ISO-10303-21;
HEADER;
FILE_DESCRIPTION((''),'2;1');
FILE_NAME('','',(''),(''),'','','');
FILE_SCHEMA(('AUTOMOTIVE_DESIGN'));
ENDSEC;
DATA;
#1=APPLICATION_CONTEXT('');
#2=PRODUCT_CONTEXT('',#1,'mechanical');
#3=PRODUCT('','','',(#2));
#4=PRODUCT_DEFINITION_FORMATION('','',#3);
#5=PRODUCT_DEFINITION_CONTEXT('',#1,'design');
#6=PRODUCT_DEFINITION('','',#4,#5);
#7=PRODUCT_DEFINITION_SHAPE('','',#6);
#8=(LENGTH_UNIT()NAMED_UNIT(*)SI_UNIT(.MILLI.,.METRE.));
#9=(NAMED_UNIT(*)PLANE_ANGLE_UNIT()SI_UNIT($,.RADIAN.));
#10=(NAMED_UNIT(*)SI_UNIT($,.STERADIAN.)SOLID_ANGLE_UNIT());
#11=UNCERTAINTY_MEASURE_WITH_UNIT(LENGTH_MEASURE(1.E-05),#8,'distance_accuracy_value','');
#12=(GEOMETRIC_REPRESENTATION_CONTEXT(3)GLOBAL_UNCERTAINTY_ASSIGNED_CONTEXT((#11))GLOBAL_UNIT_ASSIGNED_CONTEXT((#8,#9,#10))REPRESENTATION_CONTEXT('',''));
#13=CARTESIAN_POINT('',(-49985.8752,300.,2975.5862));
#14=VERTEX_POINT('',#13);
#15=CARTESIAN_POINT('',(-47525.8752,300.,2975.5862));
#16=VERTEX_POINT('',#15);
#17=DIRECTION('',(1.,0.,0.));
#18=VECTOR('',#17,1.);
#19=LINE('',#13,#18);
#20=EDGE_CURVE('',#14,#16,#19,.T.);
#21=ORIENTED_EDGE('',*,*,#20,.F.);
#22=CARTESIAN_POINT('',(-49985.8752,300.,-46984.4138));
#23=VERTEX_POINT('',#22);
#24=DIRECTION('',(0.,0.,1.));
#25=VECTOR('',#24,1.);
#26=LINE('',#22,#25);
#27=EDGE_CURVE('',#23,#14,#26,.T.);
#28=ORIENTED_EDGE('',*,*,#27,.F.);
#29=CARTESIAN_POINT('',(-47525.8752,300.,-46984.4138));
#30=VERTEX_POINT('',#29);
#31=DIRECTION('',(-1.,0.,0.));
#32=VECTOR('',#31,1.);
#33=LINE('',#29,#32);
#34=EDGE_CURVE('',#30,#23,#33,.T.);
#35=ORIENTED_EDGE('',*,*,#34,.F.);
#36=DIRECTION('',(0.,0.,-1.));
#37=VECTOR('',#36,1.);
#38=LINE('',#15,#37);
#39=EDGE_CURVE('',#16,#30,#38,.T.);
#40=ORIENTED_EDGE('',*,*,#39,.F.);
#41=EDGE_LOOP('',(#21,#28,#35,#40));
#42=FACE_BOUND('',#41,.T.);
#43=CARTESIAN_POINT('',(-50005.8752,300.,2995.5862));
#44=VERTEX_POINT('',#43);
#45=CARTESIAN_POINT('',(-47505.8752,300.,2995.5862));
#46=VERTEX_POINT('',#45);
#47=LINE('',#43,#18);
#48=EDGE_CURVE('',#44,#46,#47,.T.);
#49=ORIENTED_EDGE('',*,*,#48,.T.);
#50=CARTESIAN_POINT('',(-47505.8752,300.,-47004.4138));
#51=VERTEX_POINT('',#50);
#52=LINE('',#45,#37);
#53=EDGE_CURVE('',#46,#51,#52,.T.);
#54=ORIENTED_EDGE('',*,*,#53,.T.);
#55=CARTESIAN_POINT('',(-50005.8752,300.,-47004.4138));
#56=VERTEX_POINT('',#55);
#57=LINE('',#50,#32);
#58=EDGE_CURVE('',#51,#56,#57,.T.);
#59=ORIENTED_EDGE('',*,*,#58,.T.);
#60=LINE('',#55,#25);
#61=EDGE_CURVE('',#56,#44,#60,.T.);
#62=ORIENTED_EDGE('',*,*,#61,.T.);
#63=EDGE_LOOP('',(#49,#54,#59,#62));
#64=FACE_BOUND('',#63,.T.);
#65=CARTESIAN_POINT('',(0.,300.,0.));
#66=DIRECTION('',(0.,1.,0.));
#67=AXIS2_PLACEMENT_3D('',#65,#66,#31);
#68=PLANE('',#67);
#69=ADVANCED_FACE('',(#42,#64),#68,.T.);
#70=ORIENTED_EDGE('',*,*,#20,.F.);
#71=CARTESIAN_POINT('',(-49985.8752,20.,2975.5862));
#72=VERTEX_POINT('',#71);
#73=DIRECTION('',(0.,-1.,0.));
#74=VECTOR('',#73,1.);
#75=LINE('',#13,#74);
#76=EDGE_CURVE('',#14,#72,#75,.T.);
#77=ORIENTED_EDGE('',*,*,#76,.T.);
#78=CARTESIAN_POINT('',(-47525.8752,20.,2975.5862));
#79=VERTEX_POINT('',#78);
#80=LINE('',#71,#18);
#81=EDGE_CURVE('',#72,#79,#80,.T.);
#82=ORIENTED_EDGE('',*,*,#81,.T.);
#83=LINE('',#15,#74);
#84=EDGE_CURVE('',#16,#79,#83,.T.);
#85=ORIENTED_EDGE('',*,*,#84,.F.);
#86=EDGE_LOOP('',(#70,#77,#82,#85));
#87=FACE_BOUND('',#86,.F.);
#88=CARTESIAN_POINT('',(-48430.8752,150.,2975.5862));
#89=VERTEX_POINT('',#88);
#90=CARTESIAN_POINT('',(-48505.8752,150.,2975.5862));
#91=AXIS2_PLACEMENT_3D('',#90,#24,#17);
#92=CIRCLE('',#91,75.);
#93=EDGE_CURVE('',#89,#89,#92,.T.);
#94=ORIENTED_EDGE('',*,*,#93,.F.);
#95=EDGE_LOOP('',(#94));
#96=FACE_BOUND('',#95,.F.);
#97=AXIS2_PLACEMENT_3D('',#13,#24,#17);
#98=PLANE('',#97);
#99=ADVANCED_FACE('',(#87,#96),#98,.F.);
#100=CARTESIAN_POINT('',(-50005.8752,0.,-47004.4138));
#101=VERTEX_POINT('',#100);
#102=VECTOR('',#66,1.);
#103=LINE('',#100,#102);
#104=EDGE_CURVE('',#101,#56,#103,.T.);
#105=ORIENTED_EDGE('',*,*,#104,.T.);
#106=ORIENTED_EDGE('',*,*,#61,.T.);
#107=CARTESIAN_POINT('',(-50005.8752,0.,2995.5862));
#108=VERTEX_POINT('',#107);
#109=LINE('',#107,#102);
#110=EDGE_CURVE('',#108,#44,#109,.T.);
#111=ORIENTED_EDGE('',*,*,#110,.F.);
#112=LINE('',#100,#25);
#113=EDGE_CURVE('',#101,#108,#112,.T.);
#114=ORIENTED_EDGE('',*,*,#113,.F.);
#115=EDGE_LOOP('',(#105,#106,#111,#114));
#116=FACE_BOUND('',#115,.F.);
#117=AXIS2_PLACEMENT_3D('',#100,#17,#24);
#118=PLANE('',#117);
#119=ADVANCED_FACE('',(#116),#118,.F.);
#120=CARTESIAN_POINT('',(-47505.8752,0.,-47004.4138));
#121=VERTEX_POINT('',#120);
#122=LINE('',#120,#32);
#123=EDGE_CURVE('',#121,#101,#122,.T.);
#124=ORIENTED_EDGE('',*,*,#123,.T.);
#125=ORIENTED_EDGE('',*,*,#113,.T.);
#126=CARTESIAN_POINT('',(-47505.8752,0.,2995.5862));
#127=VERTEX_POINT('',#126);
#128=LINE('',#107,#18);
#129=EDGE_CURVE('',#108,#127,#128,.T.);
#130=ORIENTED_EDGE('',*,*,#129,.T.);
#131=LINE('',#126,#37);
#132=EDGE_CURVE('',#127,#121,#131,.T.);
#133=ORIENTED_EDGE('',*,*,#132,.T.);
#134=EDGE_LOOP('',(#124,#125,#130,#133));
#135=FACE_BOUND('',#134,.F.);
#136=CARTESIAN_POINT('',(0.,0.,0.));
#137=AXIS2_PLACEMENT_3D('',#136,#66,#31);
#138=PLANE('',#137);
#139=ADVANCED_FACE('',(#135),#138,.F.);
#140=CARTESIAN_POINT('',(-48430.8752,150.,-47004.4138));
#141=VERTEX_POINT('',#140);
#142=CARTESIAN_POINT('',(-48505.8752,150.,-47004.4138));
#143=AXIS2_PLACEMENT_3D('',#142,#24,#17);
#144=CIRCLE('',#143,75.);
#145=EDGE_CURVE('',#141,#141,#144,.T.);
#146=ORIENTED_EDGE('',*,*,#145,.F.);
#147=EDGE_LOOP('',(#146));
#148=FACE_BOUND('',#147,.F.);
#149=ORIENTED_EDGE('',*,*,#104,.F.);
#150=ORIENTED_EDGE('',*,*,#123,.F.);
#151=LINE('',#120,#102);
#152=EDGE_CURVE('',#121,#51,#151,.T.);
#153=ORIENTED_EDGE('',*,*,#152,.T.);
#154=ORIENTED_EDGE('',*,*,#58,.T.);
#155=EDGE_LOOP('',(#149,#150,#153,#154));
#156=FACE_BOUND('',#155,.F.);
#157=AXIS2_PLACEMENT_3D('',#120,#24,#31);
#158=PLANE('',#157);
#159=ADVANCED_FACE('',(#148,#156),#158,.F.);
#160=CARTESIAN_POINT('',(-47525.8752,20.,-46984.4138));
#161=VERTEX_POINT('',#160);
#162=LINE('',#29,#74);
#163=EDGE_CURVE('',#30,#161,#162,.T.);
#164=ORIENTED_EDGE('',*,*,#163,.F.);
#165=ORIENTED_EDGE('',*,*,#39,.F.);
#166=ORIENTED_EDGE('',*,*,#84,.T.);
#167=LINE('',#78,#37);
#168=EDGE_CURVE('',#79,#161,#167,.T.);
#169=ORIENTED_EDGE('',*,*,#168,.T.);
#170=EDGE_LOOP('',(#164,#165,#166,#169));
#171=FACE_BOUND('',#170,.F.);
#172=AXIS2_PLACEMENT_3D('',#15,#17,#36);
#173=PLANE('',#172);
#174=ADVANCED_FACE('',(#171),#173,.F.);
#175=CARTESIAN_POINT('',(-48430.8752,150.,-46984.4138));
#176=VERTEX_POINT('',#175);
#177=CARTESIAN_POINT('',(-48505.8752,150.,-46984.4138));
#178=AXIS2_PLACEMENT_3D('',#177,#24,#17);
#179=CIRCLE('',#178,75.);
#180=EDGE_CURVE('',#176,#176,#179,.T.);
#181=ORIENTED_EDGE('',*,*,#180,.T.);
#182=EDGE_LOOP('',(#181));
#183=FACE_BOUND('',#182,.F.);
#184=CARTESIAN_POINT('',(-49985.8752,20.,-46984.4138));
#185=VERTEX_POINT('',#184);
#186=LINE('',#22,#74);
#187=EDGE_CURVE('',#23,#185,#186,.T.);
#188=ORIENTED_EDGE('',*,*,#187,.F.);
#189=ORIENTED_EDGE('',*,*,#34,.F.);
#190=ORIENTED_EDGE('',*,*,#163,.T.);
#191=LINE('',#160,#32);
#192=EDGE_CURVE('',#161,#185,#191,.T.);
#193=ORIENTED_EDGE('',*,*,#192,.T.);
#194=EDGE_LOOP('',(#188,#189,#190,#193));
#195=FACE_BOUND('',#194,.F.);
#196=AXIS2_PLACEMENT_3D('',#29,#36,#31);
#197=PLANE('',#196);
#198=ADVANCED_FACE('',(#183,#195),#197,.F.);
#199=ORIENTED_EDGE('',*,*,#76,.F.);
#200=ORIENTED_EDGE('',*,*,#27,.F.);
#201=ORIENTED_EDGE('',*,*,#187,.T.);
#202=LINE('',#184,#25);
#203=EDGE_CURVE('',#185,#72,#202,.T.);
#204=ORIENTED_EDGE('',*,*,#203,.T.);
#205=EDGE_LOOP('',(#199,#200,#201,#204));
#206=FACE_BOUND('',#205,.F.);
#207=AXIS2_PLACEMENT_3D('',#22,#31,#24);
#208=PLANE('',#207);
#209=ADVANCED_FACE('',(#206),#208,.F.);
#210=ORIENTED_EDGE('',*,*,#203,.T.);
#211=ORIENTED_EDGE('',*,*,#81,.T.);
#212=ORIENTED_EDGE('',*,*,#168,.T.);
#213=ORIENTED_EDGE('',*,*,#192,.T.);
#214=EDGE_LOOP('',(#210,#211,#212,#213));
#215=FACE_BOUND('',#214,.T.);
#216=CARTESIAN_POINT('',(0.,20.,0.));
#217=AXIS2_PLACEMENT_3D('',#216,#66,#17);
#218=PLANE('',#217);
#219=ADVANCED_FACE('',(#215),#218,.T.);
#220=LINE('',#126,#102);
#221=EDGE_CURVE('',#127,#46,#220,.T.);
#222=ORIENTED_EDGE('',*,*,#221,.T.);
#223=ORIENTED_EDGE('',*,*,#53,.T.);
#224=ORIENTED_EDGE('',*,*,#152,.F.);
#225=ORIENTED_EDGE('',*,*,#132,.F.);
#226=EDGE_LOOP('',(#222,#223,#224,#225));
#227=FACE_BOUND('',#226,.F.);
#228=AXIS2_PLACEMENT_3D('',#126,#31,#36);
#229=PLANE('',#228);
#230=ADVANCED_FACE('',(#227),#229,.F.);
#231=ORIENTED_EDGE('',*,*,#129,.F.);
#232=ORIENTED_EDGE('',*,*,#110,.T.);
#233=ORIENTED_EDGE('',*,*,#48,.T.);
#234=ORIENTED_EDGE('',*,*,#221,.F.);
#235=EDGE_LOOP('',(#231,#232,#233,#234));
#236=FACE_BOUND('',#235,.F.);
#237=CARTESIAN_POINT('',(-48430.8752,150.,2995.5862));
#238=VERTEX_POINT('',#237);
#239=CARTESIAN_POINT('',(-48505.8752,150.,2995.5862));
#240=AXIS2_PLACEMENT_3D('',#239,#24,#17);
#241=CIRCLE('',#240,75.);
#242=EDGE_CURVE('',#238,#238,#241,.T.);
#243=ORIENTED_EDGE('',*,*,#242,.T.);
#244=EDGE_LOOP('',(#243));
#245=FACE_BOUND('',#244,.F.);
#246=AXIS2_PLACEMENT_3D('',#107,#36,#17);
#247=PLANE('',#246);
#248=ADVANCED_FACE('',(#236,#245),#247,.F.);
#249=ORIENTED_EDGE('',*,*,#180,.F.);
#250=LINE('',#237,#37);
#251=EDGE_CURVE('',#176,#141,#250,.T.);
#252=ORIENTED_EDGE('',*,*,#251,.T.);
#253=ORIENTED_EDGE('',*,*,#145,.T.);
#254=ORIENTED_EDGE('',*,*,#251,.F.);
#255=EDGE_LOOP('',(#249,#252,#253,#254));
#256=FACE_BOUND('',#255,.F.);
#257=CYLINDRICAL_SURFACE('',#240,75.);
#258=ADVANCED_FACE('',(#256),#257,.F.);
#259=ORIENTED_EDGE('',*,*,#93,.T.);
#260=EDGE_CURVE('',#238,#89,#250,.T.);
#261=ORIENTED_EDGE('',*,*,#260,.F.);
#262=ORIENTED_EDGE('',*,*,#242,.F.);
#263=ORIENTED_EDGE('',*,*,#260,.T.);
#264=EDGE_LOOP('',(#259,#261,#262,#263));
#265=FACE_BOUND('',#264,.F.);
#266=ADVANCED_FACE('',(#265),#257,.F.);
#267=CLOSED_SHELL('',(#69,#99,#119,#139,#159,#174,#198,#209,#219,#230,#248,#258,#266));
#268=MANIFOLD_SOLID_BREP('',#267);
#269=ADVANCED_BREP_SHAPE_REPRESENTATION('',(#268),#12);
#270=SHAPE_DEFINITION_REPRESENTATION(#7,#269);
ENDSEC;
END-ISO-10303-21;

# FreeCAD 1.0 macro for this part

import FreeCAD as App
import Part
import Sketcher

V = App.Vector
Q = App.Units.Quantity


def add_polygon(sketch, points):
    """Adds a closed chain of lines whose ends are joined by coincident constraints."""
    first, n = sketch.GeometryCount, len(points)
    for a, b in zip(points, points[1:] + points[:1]):
        sketch.addGeometry(Part.LineSegment(App.Vector(*a, 0), App.Vector(*b, 0)), False)
    for i in range(n):
        sketch.addConstraint(Sketcher.Constraint("Coincident", first + i, 2, first + (i + 1) % n, 1))

doc = App.newDocument("Part")
body = doc.addObject("PartDesign::Body", "Body")

# Sketch on XZ plane
sketch1 = body.newObject("Sketcher::SketchObject", "Sketch")
sketch1.AttachmentSupport = (doc.getObject("XZ_Plane"), [""])
sketch1.MapMode = "FlatFace"
add_polygon(sketch1, [(-47506, 2996), (-47506, -47004), (-50006, -47004), (-50006, 2996)])  # lines 0-3
sketch1.addConstraint(Sketcher.Constraint("Vertical", 0))
sketch1.addConstraint(Sketcher.Constraint("Horizontal", 1))
sketch1.addConstraint(Sketcher.Constraint("Vertical", 2))
sketch1.addConstraint(Sketcher.Constraint("Horizontal", 3))
sketch1.addConstraint(Sketcher.Constraint("DistanceX", 1, 2, 1, 1, Q("2500 mm")))
sketch1.addConstraint(Sketcher.Constraint("DistanceY", 0, 2, 0, 1, Q("50000 mm")))
sketch1.addConstraint(Sketcher.Constraint("DistanceX", 0, 2, -1, 1, Q("47505.8752 mm")))
sketch1.addConstraint(Sketcher.Constraint("DistanceY", 0, 2, -1, 1, Q("47004.4138 mm")))
pad1 = body.newObject("PartDesign::Pad", "Pad")
pad1.Profile = sketch1
pad1.Length = 300
pad1.Reversed = True

# Sketch on XZ plane
sketch2 = body.newObject("Sketcher::SketchObject", "Sketch001")
sketch2.AttachmentSupport = (doc.getObject("XZ_Plane"), [""])
sketch2.MapMode = "FlatFace"
sketch2.AttachmentOffset = App.Placement(V(0, 0, -300), App.Rotation())
add_polygon(sketch2, [(-47526, 2976), (-47526, -46984), (-49986, -46984), (-49986, 2976)])  # lines 0-3
sketch2.addConstraint(Sketcher.Constraint("Vertical", 0))
sketch2.addConstraint(Sketcher.Constraint("Horizontal", 1))
sketch2.addConstraint(Sketcher.Constraint("Vertical", 2))
sketch2.addConstraint(Sketcher.Constraint("Horizontal", 3))
sketch2.addConstraint(Sketcher.Constraint("DistanceX", 1, 2, 1, 1, Q("2460 mm")))
sketch2.addConstraint(Sketcher.Constraint("DistanceY", 0, 2, 0, 1, Q("49960 mm")))
sketch2.addConstraint(Sketcher.Constraint("DistanceX", 0, 2, -1, 1, Q("47525.8752 mm")))
sketch2.addConstraint(Sketcher.Constraint("DistanceY", 0, 2, -1, 1, Q("46984.4138 mm")))
pocket1 = body.newObject("PartDesign::Pocket", "Pocket")
pocket1.Profile = sketch2
pocket1.Length = 280
pocket1.Reversed = True

# Sketch on XY plane
sketch3 = body.newObject("Sketcher::SketchObject", "Sketch002")
sketch3.AttachmentSupport = (doc.getObject("XY_Plane"), [""])
sketch3.MapMode = "FlatFace"
sketch3.AttachmentOffset = App.Placement(V(0, 0, 2995.5862), App.Rotation())
sketch3.addGeometry(Part.Circle(V(-48506, 150, 0), V(0, 0, 1), 75), False)
sketch3.addConstraint(Sketcher.Constraint("Diameter", 0, Q("150 mm")))
sketch3.addConstraint(Sketcher.Constraint("DistanceY", -1, 1, 0, 3, Q("150 mm")))
sketch3.addConstraint(Sketcher.Constraint("DistanceX", 0, 3, -1, 1, Q("48505.8752 mm")))
pocket2 = body.newObject("PartDesign::Pocket", "Pocket001")
pocket2.Profile = sketch3
pocket2.Length = 55000

doc.recompute()
